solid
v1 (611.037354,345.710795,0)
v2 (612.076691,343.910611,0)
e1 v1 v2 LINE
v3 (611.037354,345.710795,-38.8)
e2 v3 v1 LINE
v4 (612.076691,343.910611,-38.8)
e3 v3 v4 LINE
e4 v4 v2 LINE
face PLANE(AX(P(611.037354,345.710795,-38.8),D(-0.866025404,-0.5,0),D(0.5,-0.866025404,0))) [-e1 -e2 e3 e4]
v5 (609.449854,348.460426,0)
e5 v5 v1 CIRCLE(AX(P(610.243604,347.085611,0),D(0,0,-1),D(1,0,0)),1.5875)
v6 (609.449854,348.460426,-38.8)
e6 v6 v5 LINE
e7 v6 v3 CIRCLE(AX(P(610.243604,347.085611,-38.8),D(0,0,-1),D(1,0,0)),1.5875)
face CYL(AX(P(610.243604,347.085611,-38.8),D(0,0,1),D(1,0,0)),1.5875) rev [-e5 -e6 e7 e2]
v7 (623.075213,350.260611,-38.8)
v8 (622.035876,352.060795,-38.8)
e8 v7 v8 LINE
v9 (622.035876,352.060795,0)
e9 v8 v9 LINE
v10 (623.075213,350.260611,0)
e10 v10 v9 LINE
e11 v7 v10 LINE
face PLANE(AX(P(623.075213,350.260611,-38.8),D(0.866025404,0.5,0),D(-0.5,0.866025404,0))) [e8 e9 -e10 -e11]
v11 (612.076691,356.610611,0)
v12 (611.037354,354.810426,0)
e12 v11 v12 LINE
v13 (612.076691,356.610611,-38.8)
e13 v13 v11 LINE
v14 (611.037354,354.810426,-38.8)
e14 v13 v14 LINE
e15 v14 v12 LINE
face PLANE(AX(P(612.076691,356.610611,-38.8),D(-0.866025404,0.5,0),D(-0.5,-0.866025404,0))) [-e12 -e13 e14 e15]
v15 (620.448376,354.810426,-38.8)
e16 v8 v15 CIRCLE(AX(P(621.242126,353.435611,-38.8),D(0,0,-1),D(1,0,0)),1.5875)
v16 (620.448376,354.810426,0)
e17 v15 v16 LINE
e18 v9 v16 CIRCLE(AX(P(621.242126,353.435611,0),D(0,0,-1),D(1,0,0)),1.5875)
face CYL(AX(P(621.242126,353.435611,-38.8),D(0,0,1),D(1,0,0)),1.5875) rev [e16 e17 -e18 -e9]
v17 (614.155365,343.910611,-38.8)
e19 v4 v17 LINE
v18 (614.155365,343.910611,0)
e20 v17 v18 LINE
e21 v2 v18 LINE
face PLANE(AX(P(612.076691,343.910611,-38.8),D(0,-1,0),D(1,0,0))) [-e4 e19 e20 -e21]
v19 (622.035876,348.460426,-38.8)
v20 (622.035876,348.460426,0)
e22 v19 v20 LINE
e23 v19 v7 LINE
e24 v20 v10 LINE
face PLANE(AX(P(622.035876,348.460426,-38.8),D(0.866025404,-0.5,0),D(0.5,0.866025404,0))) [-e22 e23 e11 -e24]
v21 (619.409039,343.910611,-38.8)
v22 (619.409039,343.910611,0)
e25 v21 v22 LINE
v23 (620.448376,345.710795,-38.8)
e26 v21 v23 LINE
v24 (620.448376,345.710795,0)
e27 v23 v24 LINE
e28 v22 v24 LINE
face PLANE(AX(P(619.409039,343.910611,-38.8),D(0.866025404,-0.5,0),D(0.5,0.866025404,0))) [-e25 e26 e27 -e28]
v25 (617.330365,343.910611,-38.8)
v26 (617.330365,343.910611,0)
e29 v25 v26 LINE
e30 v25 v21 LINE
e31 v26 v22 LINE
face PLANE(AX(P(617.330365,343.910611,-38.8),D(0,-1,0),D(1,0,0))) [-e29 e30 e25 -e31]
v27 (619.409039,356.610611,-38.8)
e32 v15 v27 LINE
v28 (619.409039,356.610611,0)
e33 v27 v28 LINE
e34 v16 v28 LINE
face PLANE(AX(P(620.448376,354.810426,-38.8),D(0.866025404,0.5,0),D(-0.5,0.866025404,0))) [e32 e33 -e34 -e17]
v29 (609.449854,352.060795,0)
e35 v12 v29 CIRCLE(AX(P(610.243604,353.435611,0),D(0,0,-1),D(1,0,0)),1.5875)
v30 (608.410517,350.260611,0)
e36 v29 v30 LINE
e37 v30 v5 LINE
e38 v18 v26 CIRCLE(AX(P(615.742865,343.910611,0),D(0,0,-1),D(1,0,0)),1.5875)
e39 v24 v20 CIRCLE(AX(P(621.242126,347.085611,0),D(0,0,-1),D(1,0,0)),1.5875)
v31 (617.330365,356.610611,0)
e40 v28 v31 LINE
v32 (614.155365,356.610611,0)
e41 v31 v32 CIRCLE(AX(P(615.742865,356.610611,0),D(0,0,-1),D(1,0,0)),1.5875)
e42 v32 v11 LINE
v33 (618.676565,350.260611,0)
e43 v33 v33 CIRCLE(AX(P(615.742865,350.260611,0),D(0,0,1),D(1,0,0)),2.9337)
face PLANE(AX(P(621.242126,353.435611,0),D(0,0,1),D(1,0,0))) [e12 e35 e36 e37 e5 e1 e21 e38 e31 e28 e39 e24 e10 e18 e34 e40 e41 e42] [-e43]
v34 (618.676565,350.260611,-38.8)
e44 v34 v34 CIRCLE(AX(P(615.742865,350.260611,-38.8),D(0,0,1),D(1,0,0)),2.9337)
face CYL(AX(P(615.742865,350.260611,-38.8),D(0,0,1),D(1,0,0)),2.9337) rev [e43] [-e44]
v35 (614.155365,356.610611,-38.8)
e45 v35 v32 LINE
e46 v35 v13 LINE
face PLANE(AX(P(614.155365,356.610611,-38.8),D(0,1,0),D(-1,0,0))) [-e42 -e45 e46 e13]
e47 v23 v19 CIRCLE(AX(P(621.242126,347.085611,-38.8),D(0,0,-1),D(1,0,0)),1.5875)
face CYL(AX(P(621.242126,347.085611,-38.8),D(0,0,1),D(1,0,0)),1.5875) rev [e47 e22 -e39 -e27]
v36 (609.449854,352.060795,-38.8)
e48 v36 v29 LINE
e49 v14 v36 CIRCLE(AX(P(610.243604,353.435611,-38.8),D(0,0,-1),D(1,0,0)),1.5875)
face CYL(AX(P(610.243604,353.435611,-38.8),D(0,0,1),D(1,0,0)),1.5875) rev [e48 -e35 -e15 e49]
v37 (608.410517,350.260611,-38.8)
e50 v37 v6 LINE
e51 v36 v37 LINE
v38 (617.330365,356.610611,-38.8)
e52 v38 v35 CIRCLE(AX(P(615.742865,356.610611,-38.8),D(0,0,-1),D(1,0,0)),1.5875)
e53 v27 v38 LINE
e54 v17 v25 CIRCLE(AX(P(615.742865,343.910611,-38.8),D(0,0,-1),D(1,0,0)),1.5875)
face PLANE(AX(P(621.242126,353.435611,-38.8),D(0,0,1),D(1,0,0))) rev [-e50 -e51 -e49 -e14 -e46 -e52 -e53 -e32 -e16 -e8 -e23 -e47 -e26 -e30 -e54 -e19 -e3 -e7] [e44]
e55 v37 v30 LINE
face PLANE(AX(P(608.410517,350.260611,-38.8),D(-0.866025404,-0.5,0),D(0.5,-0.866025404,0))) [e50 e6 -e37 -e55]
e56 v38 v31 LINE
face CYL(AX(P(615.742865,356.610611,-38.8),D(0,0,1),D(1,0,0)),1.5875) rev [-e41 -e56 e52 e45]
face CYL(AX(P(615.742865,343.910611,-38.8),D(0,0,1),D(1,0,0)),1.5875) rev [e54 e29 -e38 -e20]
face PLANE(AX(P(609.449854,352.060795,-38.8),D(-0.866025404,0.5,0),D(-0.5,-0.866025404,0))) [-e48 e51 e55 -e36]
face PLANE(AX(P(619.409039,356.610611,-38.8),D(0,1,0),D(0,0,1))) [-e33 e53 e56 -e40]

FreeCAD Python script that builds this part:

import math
import FreeCAD as App
import Part
import Sketcher

V = App.Vector
Q = App.Units.Quantity

doc = App.newDocument("Part")
params = doc.addObject("Spreadsheet::Sheet", "Params")
for row, (alias, value) in enumerate([
    ("sketch1_radius", "0.0625 in"),
    ("pad1_length", "38.8 mm"),
], start=1):
    params.set(f"A{row}", alias)
    params.set(f"B{row}", "=" + value)
    params.setAlias(f"B{row}", alias)

body = doc.addObject("PartDesign::Body", "Body")

sketch1 = body.newObject("Sketcher::SketchObject", "Sketch")
sketch1.AttachmentSupport = (doc.getObject("XY_Plane"), [""])
sketch1.MapMode = "FlatFace"
sketch1.addGeometry(Part.LineSegment(V(620.4, 354.8, 0), V(619.4, 356.6, 0)), False)
sketch1.addGeometry(Part.LineSegment(V(619.4, 356.6, 0), V(617.3, 356.6, 0)), False)
sketch1.addGeometry(Part.ArcOfCircle(Part.Circle(V(615.7, 356.6, 0), V(0, 0, 1), 1.6), math.radians(-120), math.radians(0)), False)
sketch1.addGeometry(Part.ArcOfCircle(Part.Circle(V(615.7, 356.6, 0), V(0, 0, 1), 1.6), math.radians(180), math.radians(240)), False)
sketch1.addGeometry(Part.LineSegment(V(614.2, 356.6, 0), V(612.1, 356.6, 0)), False)
sketch1.addGeometry(Part.LineSegment(V(612.1, 356.6, 0), V(611, 354.8, 0)), False)
sketch1.addGeometry(Part.ArcOfCircle(Part.Circle(V(610.2, 353.4, 0), V(0, 0, 1), 1.6), math.radians(-120), math.radians(60)), False)
sketch1.addGeometry(Part.LineSegment(V(609.4, 352.1, 0), V(608.4, 350.3, 0)), False)
sketch1.addGeometry(Part.LineSegment(V(608.4, 350.3, 0), V(609.4, 348.5, 0)), False)
sketch1.addGeometry(Part.ArcOfCircle(Part.Circle(V(610.2, 347.1, 0), V(0, 0, 1), 1.6), math.radians(-60), math.radians(120)), False)
sketch1.addGeometry(Part.LineSegment(V(611, 345.7, 0), V(612.1, 343.9, 0)), False)
sketch1.addGeometry(Part.LineSegment(V(612.1, 343.9, 0), V(614.2, 343.9, 0)), False)
sketch1.addGeometry(Part.ArcOfCircle(Part.Circle(V(615.7, 343.9, 0), V(0, 0, 1), 1.6), math.radians(0), math.radians(180)), False)
sketch1.addGeometry(Part.LineSegment(V(617.3, 343.9, 0), V(619.4, 343.9, 0)), False)
sketch1.addGeometry(Part.LineSegment(V(619.4, 343.9, 0), V(620.4, 345.7, 0)), False)
sketch1.addGeometry(Part.ArcOfCircle(Part.Circle(V(621.2, 347.1, 0), V(0, 0, 1), 1.6), math.radians(60), math.radians(240)), False)
sketch1.addGeometry(Part.LineSegment(V(622, 348.5, 0), V(623.1, 350.3, 0)), False)
sketch1.addGeometry(Part.LineSegment(V(623.1, 350.3, 0), V(622, 352.1, 0)), False)
sketch1.addGeometry(Part.ArcOfCircle(Part.Circle(V(621.2, 353.4, 0), V(0, 0, 1), 1.6), math.radians(-120), math.radians(-60)), False)
sketch1.addGeometry(Part.ArcOfCircle(Part.Circle(V(621.2, 353.4, 0), V(0, 0, 1), 1.6), math.radians(120), math.radians(240)), False)
sketch1.addGeometry(Part.ArcOfCircle(Part.Circle(V(615.7, 350.3, 0), V(0, 0, 1), 2.9), math.radians(-120), math.radians(60)), False)
sketch1.addGeometry(Part.ArcOfCircle(Part.Circle(V(615.7, 350.3, 0), V(0, 0, 1), 2.9), math.radians(60), math.radians(240)), False)
sketch1.addConstraint(Sketcher.Constraint("Coincident", 0, 2, 1, 1))
sketch1.addConstraint(Sketcher.Constraint("Coincident", 1, 2, 2, 2))
sketch1.addConstraint(Sketcher.Constraint("Tangent", 2, 1, 3, 2))
sketch1.addConstraint(Sketcher.Constraint("Coincident", 3, 1, 4, 1))
sketch1.addConstraint(Sketcher.Constraint("Coincident", 4, 2, 5, 1))
sketch1.addConstraint(Sketcher.Constraint("Coincident", 5, 2, 6, 2))
sketch1.addConstraint(Sketcher.Constraint("Coincident", 6, 1, 7, 1))
sketch1.addConstraint(Sketcher.Constraint("Coincident", 7, 2, 8, 1))
sketch1.addConstraint(Sketcher.Constraint("Coincident", 8, 2, 9, 2))
sketch1.addConstraint(Sketcher.Constraint("Coincident", 9, 1, 10, 1))
sketch1.addConstraint(Sketcher.Constraint("Coincident", 10, 2, 11, 1))
sketch1.addConstraint(Sketcher.Constraint("Coincident", 11, 2, 12, 2))
sketch1.addConstraint(Sketcher.Constraint("Coincident", 12, 1, 13, 1))
sketch1.addConstraint(Sketcher.Constraint("Coincident", 13, 2, 14, 1))
sketch1.addConstraint(Sketcher.Constraint("Coincident", 14, 2, 15, 2))
sketch1.addConstraint(Sketcher.Constraint("Coincident", 15, 1, 16, 1))
sketch1.addConstraint(Sketcher.Constraint("Coincident", 16, 2, 17, 1))
sketch1.addConstraint(Sketcher.Constraint("Coincident", 17, 2, 18, 2))
sketch1.addConstraint(Sketcher.Constraint("Tangent", 18, 1, 19, 2))
sketch1.addConstraint(Sketcher.Constraint("Coincident", 19, 1, 0, 1))
sketch1.addConstraint(Sketcher.Constraint("Tangent", 20, 1, 21, 2))
sketch1.addConstraint(Sketcher.Constraint("Coincident", 21, 1, 20, 2))
sketch1.addConstraint(Sketcher.Constraint("Horizontal", 1))
sketch1.addConstraint(Sketcher.Constraint("Horizontal", 4))
sketch1.addConstraint(Sketcher.Constraint("Horizontal", 11))
sketch1.addConstraint(Sketcher.Constraint("Horizontal", 13))
sketch1.addConstraint(Sketcher.Constraint("Equal", 2, 3))
sketch1.addConstraint(Sketcher.Constraint("Equal", 3, 6))
sketch1.addConstraint(Sketcher.Constraint("Equal", 6, 9))
sketch1.addConstraint(Sketcher.Constraint("Equal", 9, 12))
sketch1.addConstraint(Sketcher.Constraint("Equal", 12, 15))
sketch1.addConstraint(Sketcher.Constraint("Equal", 15, 18))
sketch1.addConstraint(Sketcher.Constraint("Equal", 18, 19))
sketch1.addConstraint(Sketcher.Constraint("Parallel", 5, 7))
sketch1.addConstraint(Sketcher.Constraint("Parallel", 0, 8))
sketch1.addConstraint(Sketcher.Constraint("Parallel", 8, 10))
sketch1.addConstraint(Sketcher.Constraint("Parallel", 7, 14))
sketch1.addConstraint(Sketcher.Constraint("Parallel", 14, 16))
sketch1.addConstraint(Sketcher.Constraint("Parallel", 10, 17))
sketch1.addConstraint(Sketcher.Constraint("Horizontal", 9, 3, 15, 3))
sketch1.addConstraint(Sketcher.Constraint("Horizontal", 6, 3, 18, 3))
sketch1.addConstraint(Sketcher.Constraint("Horizontal", 3, 3, 0, 2))
sketch1.addConstraint(Sketcher.Constraint("Horizontal", 1, 2, 3, 1))
sketch1.addConstraint(Sketcher.Constraint("Horizontal", 21, 3, 7, 2))
sketch1.addConstraint(Sketcher.Constraint("Horizontal", 12, 3, 10, 2))
sketch1.addConstraint(Sketcher.Constraint("Horizontal", 11, 2, 12, 1))
sketch1.addConstraint(Sketcher.Constraint("Horizontal", 9, 1, 14, 2))
sketch1.addConstraint(Sketcher.Constraint("Horizontal", 8, 2, 15, 1))
sketch1.addConstraint(Sketcher.Constraint("Horizontal", 7, 2, 16, 2))
sketch1.addConstraint(Sketcher.Constraint("Horizontal", 6, 1, 17, 2))
sketch1.addConstraint(Sketcher.Constraint("Horizontal", 17, 2, 18, 1))
sketch1.addConstraint(Sketcher.Constraint("Horizontal", 5, 2, 19, 1))
sketch1.addConstraint(Sketcher.Constraint("Vertical", 6, 3, 9, 3))
sketch1.addConstraint(Sketcher.Constraint("Vertical", 3, 3, 12, 3))
sketch1.addConstraint(Sketcher.Constraint("Vertical", 15, 3, 18, 3))
sketch1.addConstraint(Sketcher.Constraint("Vertical", 12, 3, 20, 3))
sketch1.addConstraint(Sketcher.Constraint("Vertical", 6, 1, 8, 2))
sketch1.addConstraint(Sketcher.Constraint("Vertical", 5, 2, 9, 1))
sketch1.addConstraint(Sketcher.Constraint("Vertical", 4, 2, 10, 2))
sketch1.addConstraint(Sketcher.Constraint("Vertical", 14, 2, 18, 1))
sketch1.addConstraint(Sketcher.Constraint("Equal", 1, 4))
sketch1.addConstraint(Sketcher.Constraint("Equal", 5, 7))
sketch1.addConstraint(Sketcher.Constraint("Angle", 0, Q("120 deg")))
sketch1.addConstraint(Sketcher.Constraint("Radius", 2, Q("0.0625 in")))
sketch1.addConstraint(Sketcher.Constraint("Radius", 20, Q("0.1155 in")))
sketch1.addConstraint(Sketcher.Constraint("DistanceY", 12, 3, 3, 3, Q("0.5 in")))
sketch1.addConstraint(Sketcher.Constraint("DistanceX", 2, 1, 3, 3, Q("0.03125 in")))
sketch1.addConstraint(Sketcher.Constraint("DistanceX", 6, 3, 5, 2, Q("0.03125 in")))
sketch1.addConstraint(Sketcher.Constraint("DistanceX", 2, 1, 21, 1, Q("0.089 in")))
sketch1.addConstraint(Sketcher.Constraint("DistanceX", 1, 2, 1, 1, 2.078674))
sketch1.addConstraint(Sketcher.Constraint("DistanceY", -1, 1, 2, 3, 356.610611))
sketch1.addConstraint(Sketcher.Constraint("DistanceX", -1, 1, 0, 2, 619.409039))
sketch1.addConstraint(Sketcher.Constraint("DistanceX", 20, 1, 21, 3, 1.46685))
sketch1.setExpression("Constraints[63]", "Params.sketch1_radius")
pad1 = body.newObject("PartDesign::Pad", "Pad")
pad1.Profile = sketch1
pad1.setExpression("Length", "Params.pad1_length")
pad1.Reversed = True

doc.recompute()
